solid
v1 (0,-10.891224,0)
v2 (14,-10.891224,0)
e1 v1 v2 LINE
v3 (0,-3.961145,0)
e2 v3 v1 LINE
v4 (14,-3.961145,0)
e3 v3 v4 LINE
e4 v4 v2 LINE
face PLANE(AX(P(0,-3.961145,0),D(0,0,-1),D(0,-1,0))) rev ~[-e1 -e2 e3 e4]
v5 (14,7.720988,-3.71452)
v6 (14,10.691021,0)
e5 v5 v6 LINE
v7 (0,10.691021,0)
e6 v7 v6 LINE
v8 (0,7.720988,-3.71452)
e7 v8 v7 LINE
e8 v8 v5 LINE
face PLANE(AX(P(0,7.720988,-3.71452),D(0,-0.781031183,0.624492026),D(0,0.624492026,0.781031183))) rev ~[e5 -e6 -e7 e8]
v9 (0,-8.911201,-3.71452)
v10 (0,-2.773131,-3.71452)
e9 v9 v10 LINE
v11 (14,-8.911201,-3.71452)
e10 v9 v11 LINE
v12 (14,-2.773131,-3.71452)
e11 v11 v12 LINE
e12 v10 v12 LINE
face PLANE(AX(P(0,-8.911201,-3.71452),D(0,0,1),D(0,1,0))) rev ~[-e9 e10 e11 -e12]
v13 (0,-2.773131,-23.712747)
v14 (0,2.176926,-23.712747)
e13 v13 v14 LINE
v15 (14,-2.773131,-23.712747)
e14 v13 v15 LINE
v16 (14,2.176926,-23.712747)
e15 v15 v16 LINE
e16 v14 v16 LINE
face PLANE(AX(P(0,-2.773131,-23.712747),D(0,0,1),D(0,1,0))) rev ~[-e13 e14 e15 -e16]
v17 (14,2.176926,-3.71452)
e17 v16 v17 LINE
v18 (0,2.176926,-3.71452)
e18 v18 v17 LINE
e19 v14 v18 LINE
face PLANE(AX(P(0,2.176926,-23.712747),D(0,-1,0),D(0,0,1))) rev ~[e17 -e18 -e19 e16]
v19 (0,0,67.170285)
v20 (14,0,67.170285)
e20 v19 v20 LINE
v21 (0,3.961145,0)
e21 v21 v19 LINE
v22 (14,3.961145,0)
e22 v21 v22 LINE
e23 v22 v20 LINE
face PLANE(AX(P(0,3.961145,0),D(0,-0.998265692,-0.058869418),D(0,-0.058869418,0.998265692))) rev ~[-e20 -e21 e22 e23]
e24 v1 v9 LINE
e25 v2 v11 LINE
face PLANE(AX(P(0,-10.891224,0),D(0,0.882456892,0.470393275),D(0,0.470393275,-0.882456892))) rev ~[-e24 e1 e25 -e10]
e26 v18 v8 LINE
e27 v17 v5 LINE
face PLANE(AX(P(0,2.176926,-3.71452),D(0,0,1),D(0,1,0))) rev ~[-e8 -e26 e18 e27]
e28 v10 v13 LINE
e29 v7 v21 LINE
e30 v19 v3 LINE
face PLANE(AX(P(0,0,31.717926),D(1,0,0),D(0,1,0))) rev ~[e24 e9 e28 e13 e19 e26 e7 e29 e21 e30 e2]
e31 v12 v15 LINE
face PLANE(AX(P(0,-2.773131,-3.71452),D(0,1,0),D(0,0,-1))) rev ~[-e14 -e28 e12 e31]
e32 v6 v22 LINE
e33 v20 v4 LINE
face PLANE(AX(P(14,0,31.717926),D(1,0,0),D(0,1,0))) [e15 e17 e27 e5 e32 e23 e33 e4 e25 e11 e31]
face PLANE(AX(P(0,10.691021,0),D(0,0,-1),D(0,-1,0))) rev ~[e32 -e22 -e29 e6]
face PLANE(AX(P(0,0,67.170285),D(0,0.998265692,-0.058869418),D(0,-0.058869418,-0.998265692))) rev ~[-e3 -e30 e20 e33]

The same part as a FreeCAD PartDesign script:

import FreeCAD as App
import Part
import Sketcher
Q = App.Units.Quantity

doc = App.newDocument("Part")
body = doc.addObject("PartDesign::Body", "Body")

sketch1 = doc.addObject("Sketcher::SketchObject", "Sketch")
body.addObject(sketch1)
sketch1.AttachmentSupport = (doc.YZ_Plane, [""])
sketch1.MapMode = "FlatFace"
sketch1.addGeometry([
    Part.LineSegment(App.Vector(0, 67.2, 0), App.Vector(-4, 0, 0)),
    Part.LineSegment(App.Vector(-4, 0, 0), App.Vector(-10.9, 0, 0)),
    Part.LineSegment(App.Vector(-10.9, 0, 0), App.Vector(-8.9, -3.7, 0)),
    Part.LineSegment(App.Vector(-8.9, -3.7, 0), App.Vector(-2.8, -3.7, 0)),
    Part.LineSegment(App.Vector(-2.8, -3.7, 0), App.Vector(-2.8, -23.7, 0)),
    Part.LineSegment(App.Vector(-2.8, -23.7, 0), App.Vector(2.2, -23.7, 0)),
    Part.LineSegment(App.Vector(2.2, -23.7, 0), App.Vector(2.2, -3.7, 0)),
    Part.LineSegment(App.Vector(2.2, -3.7, 0), App.Vector(7.7, -3.7, 0)),
    Part.LineSegment(App.Vector(7.7, -3.7, 0), App.Vector(10.7, 0, 0)),
    Part.LineSegment(App.Vector(10.7, 0, 0), App.Vector(4, 0, 0)),
    Part.LineSegment(App.Vector(4, 0, 0), App.Vector(0, 67.2, 0)),
], False)
sketch1.addConstraint([
    Sketcher.Constraint("Coincident", 0, 2, 1, 1),
    Sketcher.Constraint("Coincident", 1, 2, 2, 1),
    Sketcher.Constraint("Coincident", 2, 2, 3, 1),
    Sketcher.Constraint("Coincident", 3, 2, 4, 1),
    Sketcher.Constraint("Coincident", 4, 2, 5, 1),
    Sketcher.Constraint("Coincident", 5, 2, 6, 1),
    Sketcher.Constraint("Coincident", 6, 2, 7, 1),
    Sketcher.Constraint("Coincident", 7, 2, 8, 1),
    Sketcher.Constraint("Coincident", 8, 2, 9, 1),
    Sketcher.Constraint("Coincident", 9, 2, 10, 1),
    Sketcher.Constraint("Coincident", 10, 2, 0, 1),
    Sketcher.Constraint("Horizontal", 1),
    Sketcher.Constraint("Horizontal", 3),
    Sketcher.Constraint("Vertical", 4),
    Sketcher.Constraint("Horizontal", 5),
    Sketcher.Constraint("Vertical", 6),
    Sketcher.Constraint("Horizontal", 7),
    Sketcher.Constraint("Horizontal", 9),
    Sketcher.Constraint("Symmetric", 0, 2, 9, 2, -1, 1),
    Sketcher.Constraint("PointOnObject", 0, 2, -1),
    Sketcher.Constraint("PointOnObject", 10, 2, -2),
    Sketcher.Constraint("Horizontal", 3, 2, 6, 2),
    Sketcher.Constraint("DistanceX", 1, 2, 1, 1, Q("6.930079 mm")),
    Sketcher.Constraint("DistanceX", 3, 1, 3, 2, Q("6.13807 mm")),
    Sketcher.Constraint("DistanceX", 2, 2, -1, 1, Q("8.911201 mm")),
    Sketcher.Constraint("Distance", 0, Q("67.286981 mm")),
    Sketcher.Constraint("DistanceX", 5, 1, 5, 2, Q("4.950056 mm")),
    Sketcher.Constraint("DistanceX", 7, 1, 7, 2, Q("5.544062 mm")),
    Sketcher.Constraint("DistanceX", 9, 2, 9, 1, Q("6.729875 mm")),
    Sketcher.Constraint("DistanceY", 4, 2, 4, 1, Q("19.998227 mm")),
    Sketcher.Constraint("DistanceY", 2, 2, -1, 1, Q("3.71452 mm")),
    Sketcher.Constraint("DistanceX", -1, 1, 8, 2, Q("10.691021 mm")),
])
pad1 = doc.addObject("PartDesign::Pad", "Pad")
body.addObject(pad1)
pad1.Profile = sketch1
pad1.Length = 14

doc.recompute()
